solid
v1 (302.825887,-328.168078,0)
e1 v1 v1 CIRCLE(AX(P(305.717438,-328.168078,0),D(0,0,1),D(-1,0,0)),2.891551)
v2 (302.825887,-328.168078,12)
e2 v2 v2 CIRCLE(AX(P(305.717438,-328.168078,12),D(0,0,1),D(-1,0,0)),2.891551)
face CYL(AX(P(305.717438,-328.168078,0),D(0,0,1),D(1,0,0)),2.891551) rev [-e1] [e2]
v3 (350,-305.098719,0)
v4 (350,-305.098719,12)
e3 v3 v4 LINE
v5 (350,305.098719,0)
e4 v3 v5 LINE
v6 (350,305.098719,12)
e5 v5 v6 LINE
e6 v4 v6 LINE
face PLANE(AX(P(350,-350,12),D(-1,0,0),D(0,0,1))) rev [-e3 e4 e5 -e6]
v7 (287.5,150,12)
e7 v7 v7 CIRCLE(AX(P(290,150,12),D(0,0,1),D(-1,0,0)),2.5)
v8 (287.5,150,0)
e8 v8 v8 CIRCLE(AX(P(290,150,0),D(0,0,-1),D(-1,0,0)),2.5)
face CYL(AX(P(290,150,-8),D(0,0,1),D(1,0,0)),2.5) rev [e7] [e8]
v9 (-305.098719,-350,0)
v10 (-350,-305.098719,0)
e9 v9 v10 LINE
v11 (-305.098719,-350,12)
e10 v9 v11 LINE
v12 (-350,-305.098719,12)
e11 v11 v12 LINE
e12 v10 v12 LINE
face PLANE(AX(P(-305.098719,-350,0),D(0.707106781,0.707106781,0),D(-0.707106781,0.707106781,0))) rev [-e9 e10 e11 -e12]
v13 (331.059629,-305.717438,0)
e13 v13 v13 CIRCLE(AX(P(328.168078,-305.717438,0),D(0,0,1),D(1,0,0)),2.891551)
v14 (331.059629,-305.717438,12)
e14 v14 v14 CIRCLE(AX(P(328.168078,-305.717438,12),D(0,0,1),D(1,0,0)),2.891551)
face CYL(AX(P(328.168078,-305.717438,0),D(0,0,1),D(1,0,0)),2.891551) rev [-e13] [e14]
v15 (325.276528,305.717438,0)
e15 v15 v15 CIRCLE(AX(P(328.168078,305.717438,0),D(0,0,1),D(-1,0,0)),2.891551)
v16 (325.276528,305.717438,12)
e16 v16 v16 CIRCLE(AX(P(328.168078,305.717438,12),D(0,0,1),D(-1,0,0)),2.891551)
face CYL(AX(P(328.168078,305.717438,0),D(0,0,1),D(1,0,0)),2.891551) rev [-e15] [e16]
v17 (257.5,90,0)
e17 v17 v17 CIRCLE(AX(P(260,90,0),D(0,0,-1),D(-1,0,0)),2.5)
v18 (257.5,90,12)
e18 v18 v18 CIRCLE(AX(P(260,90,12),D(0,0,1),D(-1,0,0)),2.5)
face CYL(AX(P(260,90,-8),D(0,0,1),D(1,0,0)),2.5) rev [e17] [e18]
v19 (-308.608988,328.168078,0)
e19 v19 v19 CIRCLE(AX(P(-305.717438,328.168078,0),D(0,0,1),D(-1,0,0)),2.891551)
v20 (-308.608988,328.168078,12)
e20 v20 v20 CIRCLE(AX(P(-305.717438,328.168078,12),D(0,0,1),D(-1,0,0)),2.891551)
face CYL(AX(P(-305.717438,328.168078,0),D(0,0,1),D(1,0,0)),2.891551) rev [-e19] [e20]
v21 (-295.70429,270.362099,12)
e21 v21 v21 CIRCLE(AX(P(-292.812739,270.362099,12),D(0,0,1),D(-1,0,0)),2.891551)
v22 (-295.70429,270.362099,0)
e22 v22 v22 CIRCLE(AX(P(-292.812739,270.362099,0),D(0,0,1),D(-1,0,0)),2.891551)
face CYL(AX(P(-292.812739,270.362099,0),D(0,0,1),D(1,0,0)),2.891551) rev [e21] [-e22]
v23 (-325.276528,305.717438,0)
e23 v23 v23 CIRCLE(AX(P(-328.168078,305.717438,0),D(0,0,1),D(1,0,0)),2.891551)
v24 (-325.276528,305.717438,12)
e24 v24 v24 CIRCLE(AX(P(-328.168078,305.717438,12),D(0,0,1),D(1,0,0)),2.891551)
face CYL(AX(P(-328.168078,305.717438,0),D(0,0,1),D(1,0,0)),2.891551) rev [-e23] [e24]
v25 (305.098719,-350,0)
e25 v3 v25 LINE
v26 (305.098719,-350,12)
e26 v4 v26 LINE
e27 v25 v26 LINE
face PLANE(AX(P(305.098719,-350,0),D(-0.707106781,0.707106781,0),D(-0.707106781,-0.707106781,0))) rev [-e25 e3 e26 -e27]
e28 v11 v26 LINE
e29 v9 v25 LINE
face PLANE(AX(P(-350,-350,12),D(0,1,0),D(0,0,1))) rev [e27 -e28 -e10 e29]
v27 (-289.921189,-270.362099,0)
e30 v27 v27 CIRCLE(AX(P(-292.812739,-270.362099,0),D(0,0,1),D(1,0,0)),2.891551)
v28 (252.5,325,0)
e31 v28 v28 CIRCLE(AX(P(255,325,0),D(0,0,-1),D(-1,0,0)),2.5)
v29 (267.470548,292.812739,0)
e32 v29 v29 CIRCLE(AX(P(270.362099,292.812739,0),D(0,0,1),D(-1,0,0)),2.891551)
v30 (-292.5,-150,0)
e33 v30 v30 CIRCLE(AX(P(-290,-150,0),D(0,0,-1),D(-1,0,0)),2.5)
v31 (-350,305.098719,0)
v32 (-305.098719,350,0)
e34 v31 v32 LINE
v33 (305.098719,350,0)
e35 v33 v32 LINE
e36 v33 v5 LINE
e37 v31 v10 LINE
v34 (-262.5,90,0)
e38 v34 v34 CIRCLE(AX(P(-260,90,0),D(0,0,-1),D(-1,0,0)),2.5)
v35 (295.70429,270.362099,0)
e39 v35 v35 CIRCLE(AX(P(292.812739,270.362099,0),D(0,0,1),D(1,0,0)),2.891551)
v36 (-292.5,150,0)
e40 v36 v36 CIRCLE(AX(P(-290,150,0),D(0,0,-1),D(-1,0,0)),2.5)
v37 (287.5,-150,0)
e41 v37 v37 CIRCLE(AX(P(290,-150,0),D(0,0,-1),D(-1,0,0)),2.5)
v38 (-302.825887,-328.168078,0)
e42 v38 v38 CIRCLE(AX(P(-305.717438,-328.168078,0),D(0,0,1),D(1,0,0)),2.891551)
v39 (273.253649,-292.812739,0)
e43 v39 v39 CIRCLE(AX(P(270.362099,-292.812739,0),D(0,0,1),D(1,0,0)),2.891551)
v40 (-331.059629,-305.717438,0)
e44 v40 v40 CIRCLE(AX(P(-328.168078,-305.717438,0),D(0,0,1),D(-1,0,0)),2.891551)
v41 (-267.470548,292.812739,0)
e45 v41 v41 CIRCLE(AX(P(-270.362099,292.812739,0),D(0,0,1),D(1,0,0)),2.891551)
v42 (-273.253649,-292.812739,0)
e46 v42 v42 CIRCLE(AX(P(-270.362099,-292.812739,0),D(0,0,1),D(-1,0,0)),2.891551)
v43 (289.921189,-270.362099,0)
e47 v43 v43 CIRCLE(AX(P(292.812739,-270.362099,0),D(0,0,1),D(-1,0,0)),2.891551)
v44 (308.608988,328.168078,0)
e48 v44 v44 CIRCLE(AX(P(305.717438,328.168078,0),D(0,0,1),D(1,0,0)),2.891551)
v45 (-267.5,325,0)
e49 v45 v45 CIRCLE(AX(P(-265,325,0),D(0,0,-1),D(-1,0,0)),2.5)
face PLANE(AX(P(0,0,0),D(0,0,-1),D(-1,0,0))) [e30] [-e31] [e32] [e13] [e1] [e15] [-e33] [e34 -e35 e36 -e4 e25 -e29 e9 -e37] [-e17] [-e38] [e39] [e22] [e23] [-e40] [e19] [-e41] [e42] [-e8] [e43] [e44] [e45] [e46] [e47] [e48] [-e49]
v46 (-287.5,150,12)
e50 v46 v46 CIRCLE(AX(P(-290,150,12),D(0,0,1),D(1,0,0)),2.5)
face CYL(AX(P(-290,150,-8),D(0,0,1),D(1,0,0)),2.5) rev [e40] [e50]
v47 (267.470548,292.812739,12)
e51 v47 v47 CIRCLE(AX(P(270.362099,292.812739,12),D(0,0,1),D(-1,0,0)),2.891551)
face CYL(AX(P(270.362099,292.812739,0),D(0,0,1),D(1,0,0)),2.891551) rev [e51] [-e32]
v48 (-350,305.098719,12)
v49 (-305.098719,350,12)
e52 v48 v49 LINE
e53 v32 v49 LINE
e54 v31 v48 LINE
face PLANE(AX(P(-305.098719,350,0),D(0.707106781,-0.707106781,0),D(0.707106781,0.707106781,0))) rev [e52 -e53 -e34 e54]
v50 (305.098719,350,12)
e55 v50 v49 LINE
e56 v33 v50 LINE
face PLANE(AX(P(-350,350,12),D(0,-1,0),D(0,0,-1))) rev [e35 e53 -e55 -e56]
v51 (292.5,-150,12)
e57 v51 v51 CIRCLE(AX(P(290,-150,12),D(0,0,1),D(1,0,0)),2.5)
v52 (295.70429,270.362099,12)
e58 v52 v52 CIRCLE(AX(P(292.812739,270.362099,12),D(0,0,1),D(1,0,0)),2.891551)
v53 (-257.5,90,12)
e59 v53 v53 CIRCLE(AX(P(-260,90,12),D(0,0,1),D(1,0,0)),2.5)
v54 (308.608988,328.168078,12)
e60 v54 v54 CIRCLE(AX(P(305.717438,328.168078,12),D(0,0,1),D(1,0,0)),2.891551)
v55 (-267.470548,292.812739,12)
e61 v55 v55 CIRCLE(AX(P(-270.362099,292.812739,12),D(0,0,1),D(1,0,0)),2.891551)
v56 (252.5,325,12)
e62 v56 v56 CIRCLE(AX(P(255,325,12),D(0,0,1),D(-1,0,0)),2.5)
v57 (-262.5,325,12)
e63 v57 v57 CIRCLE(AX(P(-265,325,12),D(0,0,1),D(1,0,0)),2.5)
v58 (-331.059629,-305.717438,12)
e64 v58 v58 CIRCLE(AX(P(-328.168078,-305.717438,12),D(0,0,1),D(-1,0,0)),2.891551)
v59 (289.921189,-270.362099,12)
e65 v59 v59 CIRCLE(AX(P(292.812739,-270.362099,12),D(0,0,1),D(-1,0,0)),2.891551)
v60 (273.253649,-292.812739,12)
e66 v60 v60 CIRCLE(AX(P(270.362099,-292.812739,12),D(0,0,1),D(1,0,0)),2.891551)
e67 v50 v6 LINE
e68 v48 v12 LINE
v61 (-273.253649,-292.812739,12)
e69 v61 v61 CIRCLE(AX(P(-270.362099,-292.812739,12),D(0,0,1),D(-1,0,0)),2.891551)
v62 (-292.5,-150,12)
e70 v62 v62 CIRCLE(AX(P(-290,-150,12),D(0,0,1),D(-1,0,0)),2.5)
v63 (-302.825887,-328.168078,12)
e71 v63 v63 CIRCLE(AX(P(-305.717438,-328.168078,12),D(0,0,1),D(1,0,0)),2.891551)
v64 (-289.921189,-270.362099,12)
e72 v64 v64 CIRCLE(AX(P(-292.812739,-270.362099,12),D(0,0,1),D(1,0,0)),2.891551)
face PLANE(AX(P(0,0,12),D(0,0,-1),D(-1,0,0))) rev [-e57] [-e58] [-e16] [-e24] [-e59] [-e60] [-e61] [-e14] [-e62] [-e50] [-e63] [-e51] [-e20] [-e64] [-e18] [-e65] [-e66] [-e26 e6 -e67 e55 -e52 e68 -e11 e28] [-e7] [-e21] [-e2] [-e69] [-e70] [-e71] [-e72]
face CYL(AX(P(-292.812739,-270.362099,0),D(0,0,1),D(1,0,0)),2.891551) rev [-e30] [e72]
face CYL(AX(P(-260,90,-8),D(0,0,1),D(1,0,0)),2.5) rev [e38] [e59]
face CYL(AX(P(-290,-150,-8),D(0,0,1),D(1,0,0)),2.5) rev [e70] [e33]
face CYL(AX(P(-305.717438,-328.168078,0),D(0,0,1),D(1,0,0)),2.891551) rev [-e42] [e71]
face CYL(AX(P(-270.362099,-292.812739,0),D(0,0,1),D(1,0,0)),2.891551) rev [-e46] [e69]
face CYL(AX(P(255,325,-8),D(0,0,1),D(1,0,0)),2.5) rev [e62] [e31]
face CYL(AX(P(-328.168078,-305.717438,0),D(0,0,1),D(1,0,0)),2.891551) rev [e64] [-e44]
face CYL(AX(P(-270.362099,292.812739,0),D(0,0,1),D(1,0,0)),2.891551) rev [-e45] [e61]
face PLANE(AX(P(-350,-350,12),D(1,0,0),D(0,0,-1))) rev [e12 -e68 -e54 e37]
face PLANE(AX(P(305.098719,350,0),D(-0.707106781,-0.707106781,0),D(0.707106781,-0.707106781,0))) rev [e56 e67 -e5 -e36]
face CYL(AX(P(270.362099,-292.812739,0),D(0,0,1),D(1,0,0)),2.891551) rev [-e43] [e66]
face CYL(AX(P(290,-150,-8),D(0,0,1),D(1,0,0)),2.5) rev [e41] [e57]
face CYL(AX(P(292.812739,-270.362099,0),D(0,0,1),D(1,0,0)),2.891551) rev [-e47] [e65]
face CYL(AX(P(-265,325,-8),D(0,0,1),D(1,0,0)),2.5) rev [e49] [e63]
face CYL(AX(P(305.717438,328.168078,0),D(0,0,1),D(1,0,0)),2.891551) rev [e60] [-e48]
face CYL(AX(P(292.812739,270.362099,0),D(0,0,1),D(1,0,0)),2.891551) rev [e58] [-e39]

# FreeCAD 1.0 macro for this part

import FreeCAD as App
import Part
import Sketcher
from FreeCAD import Vector

doc = App.newDocument("Part")
body = doc.addObject("PartDesign::Body", "Body")

# Sketch on XY plane
sketch1 = body.newObject("Sketcher::SketchObject", "Sketch")
sketch1.AttachmentSupport = (doc.getObject("XY_Plane"), [""])
sketch1.MapMode = "FlatFace"
sketch1.addGeometry([
    Part.LineSegment(Vector(-350, 350, 0), Vector(-350, -350, 0)),
    Part.LineSegment(Vector(-350, -350, 0), Vector(350, -350, 0)),
    Part.LineSegment(Vector(350, -350, 0), Vector(350, 350, 0)),
    Part.LineSegment(Vector(350, 350, 0), Vector(-350, 350, 0)),
], False)
sketch1.addConstraint([
    Sketcher.Constraint("Coincident", 0, 2, 1, 1),
    Sketcher.Constraint("Coincident", 1, 2, 2, 1),
    Sketcher.Constraint("Coincident", 2, 2, 3, 1),
    Sketcher.Constraint("Coincident", 3, 2, 0, 1),
    Sketcher.Constraint("Vertical", 0),
    Sketcher.Constraint("Horizontal", 1),
    Sketcher.Constraint("Vertical", 2),
    Sketcher.Constraint("Horizontal", 3),
    Sketcher.Constraint("Symmetric", 0, 2, 2, 2, -1, 1),
    Sketcher.Constraint("Equal", 3, 0),
    Sketcher.Constraint("DistanceX", 1, 1, 1, 2, 700.0),
])
pad1 = body.newObject("PartDesign::Pad", "Pad")
pad1.Profile = sketch1
pad1.Length = 12

# Sketch on XY plane
sketch2 = body.newObject("Sketcher::SketchObject", "Sketch001")
sketch2.AttachmentSupport = (doc.getObject("XY_Plane"), [""])
sketch2.MapMode = "FlatFace"
sketch2.AttachmentOffset = App.Placement(Vector(0, 0, 12), App.Rotation())
sketch2.addGeometry([
    Part.Circle(Vector(305.7, 328.2, 0), Vector(0, 0, 1), 2.9),  # 0
    Part.Circle(Vector(328.2, 305.7, 0), Vector(0, 0, 1), 2.9),  # 1
    Part.Circle(Vector(292.8, 270.4, 0), Vector(0, 0, 1), 2.9),  # 2
    Part.Circle(Vector(270.4, 292.8, 0), Vector(0, 0, 1), 2.9),  # 3
    Part.Circle(Vector(-270.4, 292.8, 0), Vector(0, 0, 1), 2.9),  # 4
    Part.Circle(Vector(-292.8, 270.4, 0), Vector(0, 0, 1), 2.9),  # 5
    Part.Circle(Vector(-305.7, 328.2, 0), Vector(0, 0, 1), 2.9),  # 6
    Part.Circle(Vector(-328.2, 305.7, 0), Vector(0, 0, 1), 2.9),  # 7
    Part.Circle(Vector(270.4, -292.8, 0), Vector(0, 0, 1), 2.9),  # 8
    Part.Circle(Vector(305.7, -328.2, 0), Vector(0, 0, 1), 2.9),  # 9
    Part.Circle(Vector(328.2, -305.7, 0), Vector(0, 0, 1), 2.9),  # 10
    Part.Circle(Vector(292.8, -270.4, 0), Vector(0, 0, 1), 2.9),  # 11
    Part.Circle(Vector(-270.4, -292.8, 0), Vector(0, 0, 1), 2.9),  # 12
    Part.Circle(Vector(-292.8, -270.4, 0), Vector(0, 0, 1), 2.9),  # 13
    Part.Circle(Vector(-305.7, -328.2, 0), Vector(0, 0, 1), 2.9),  # 14
    Part.Circle(Vector(-328.2, -305.7, 0), Vector(0, 0, 1), 2.9),  # 15
    Part.LineSegment(Vector(350, 350, 0), Vector(305.1, 350, 0)),  # 16
    Part.LineSegment(Vector(305.1, 350, 0), Vector(350, 305.1, 0)),  # 17
    Part.LineSegment(Vector(350, 305.1, 0), Vector(350, 350, 0)),  # 18
    Part.LineSegment(Vector(-350, 305.1, 0), Vector(-305.1, 350, 0)),  # 19
    Part.LineSegment(Vector(-305.1, 350, 0), Vector(-350, 350, 0)),  # 20
    Part.LineSegment(Vector(-350, 350, 0), Vector(-350, 305.1, 0)),  # 21
    Part.LineSegment(Vector(350, -305.1, 0), Vector(305.1, -350, 0)),  # 22
    Part.LineSegment(Vector(305.1, -350, 0), Vector(350, -350, 0)),  # 23
    Part.LineSegment(Vector(350, -350, 0), Vector(350, -305.1, 0)),  # 24
    Part.LineSegment(Vector(-350, -350, 0), Vector(-305.1, -350, 0)),  # 25
    Part.LineSegment(Vector(-305.1, -350, 0), Vector(-350, -305.1, 0)),  # 26
    Part.LineSegment(Vector(-350, -305.1, 0), Vector(-350, -350, 0)),  # 27
], False)
sketch2.addConstraint([
    Sketcher.Constraint("Coincident", 16, 2, 17, 1),
    Sketcher.Constraint("Coincident", 17, 2, 18, 1),
    Sketcher.Constraint("Coincident", 18, 2, 16, 1),
    Sketcher.Constraint("Coincident", 19, 2, 20, 1),
    Sketcher.Constraint("Coincident", 20, 2, 21, 1),
    Sketcher.Constraint("Coincident", 21, 2, 19, 1),
    Sketcher.Constraint("Coincident", 22, 2, 23, 1),
    Sketcher.Constraint("Coincident", 23, 2, 24, 1),
    Sketcher.Constraint("Coincident", 24, 2, 22, 1),
    Sketcher.Constraint("Coincident", 25, 2, 26, 1),
    Sketcher.Constraint("Coincident", 26, 2, 27, 1),
    Sketcher.Constraint("Coincident", 27, 2, 25, 1),
    Sketcher.Constraint("Horizontal", 16),
    Sketcher.Constraint("Vertical", 18),
    Sketcher.Constraint("Horizontal", 20),
    Sketcher.Constraint("Vertical", 21),
    Sketcher.Constraint("Horizontal", 23),
    Sketcher.Constraint("Vertical", 24),
    Sketcher.Constraint("Horizontal", 25),
    Sketcher.Constraint("Vertical", 27),
    Sketcher.Constraint("Equal", 0, 1),
    Sketcher.Constraint("Equal", 1, 2),
    Sketcher.Constraint("Equal", 2, 3),
    Sketcher.Constraint("Equal", 3, 4),
    Sketcher.Constraint("Equal", 4, 5),
    Sketcher.Constraint("Equal", 5, 6),
    Sketcher.Constraint("Equal", 6, 7),
    Sketcher.Constraint("Equal", 7, 8),
    Sketcher.Constraint("Equal", 8, 9),
    Sketcher.Constraint("Equal", 9, 10),
    Sketcher.Constraint("Equal", 10, 11),
    Sketcher.Constraint("Equal", 11, 12),
    Sketcher.Constraint("Equal", 12, 13),
    Sketcher.Constraint("Equal", 13, 14),
    Sketcher.Constraint("Equal", 14, 15),
    Sketcher.Constraint("Symmetric", 4, 3, 8, 3, -1, 1),
    Sketcher.Constraint("Symmetric", 6, 3, 9, 3, -1, 1),
    Sketcher.Constraint("Symmetric", 7, 3, 10, 3, -1, 1),
    Sketcher.Constraint("Symmetric", 5, 3, 11, 3, -1, 1),
    Sketcher.Constraint("Symmetric", 3, 3, 12, 3, -1, 1),
    Sketcher.Constraint("Symmetric", 2, 3, 13, 3, -1, 1),
    Sketcher.Constraint("Symmetric", 0, 3, 14, 3, -1, 1),
    Sketcher.Constraint("Symmetric", 1, 3, 15, 3, -1, 1),
    Sketcher.Constraint("Symmetric", 19, 2, 22, 2, -1, 1),
    Sketcher.Constraint("Symmetric", 21, 2, 24, 2, -1, 1),
    Sketcher.Constraint("Symmetric", 16, 2, 25, 2, -1, 1),
    Sketcher.Constraint("Symmetric", 17, 2, 26, 2, -1, 1),
    Sketcher.Constraint("Symmetric", 3, 3, 4, 3, -2),
    Sketcher.Constraint("Symmetric", 2, 3, 5, 3, -2),
    Sketcher.Constraint("Symmetric", 0, 3, 6, 3, -2),
    Sketcher.Constraint("Symmetric", 1, 3, 7, 3, -2),
    Sketcher.Constraint("Symmetric", 16, 2, 19, 2, -2),
    Sketcher.Constraint("Symmetric", 17, 2, 21, 2, -2),
    Sketcher.Constraint("Perpendicular", 17, 19),
    Sketcher.Constraint("DistanceY", -1, 1, 16, 2, 350.0),
    Sketcher.Constraint("DistanceX", -1, 1, 17, 2, 350.0),
    Sketcher.Constraint("Distance", 17, 63.5),
    Sketcher.Constraint("Diameter", 0, 5.783101),
    Sketcher.Constraint("DistanceY", -1, 1, 2, 3, 270.362099),
    Sketcher.Constraint("DistanceX", -1, 1, 3, 3, 270.362099),
    Sketcher.Constraint("DistanceX", 2, 3, 0, 3, 12.904699),
    Sketcher.Constraint("DistanceY", 3, 3, 1, 3, 12.904699),
    Sketcher.Constraint("DistanceY", -1, 1, 0, 3, 328.168078),
    Sketcher.Constraint("DistanceX", -1, 1, 1, 3, 328.168078),
    Sketcher.Constraint("DistanceX", -1, 1, 2, 3, 292.812739),
    Sketcher.Constraint("DistanceY", -1, 1, 3, 3, 292.812739),
])
pocket1 = body.newObject("PartDesign::Pocket", "Pocket")
pocket1.Profile = sketch2
pocket1.Type = "ThroughAll"

# Sketch on XY plane
sketch3 = body.newObject("Sketcher::SketchObject", "Sketch002")
sketch3.AttachmentSupport = (doc.getObject("XY_Plane"), [""])
sketch3.MapMode = "FlatFace"
sketch3.AttachmentOffset = App.Placement(Vector(0, 0, 12), App.Rotation())
sketch3.addGeometry([
    Part.Circle(Vector(-290, 150, 0), Vector(0, 0, 1), 2.5),  # 0
    Part.Circle(Vector(290, 150, 0), Vector(0, 0, 1), 2.5),  # 1
    Part.Circle(Vector(290, -150, 0), Vector(0, 0, 1), 2.5),  # 2
    Part.Circle(Vector(-290, -150, 0), Vector(0, 0, 1), 2.5),  # 3
    Part.Circle(Vector(-265, 325, 0), Vector(0, 0, 1), 2.5),  # 4
    Part.Circle(Vector(255, 325, 0), Vector(0, 0, 1), 2.5),  # 5
    Part.Circle(Vector(-260, 90, 0), Vector(0, 0, 1), 2.5),  # 6
    Part.Circle(Vector(260, 90, 0), Vector(0, 0, 1), 2.5),  # 7
], False)
sketch3.addConstraint([
    Sketcher.Constraint("Equal", 0, 1),
    Sketcher.Constraint("Equal", 1, 2),
    Sketcher.Constraint("Equal", 2, 3),
    Sketcher.Constraint("Equal", 3, 4),
    Sketcher.Constraint("Equal", 4, 5),
    Sketcher.Constraint("Equal", 5, 6),
    Sketcher.Constraint("Equal", 6, 7),
    Sketcher.Constraint("Symmetric", 0, 3, 2, 3, -1, 1),
    Sketcher.Constraint("Symmetric", 1, 3, 3, 3, -1, 1),
    Sketcher.Constraint("Symmetric", 0, 3, 1, 3, -2),
    Sketcher.Constraint("Symmetric", 6, 3, 7, 3, -2),
    Sketcher.Constraint("Horizontal", 4, 3, 5, 3),
    Sketcher.Constraint("Diameter", 0, 5.0),
    Sketcher.Constraint("DistanceX", 0, 3, -1, 1, 290.0),
    Sketcher.Constraint("DistanceY", -1, 1, 0, 3, 150.0),
    Sketcher.Constraint("DistanceX", 4, 3, -1, 1, 265.0),
    Sketcher.Constraint("DistanceY", -1, 1, 4, 3, 325.0),
    Sketcher.Constraint("DistanceX", -1, 1, 5, 3, 255.0),
    Sketcher.Constraint("DistanceX", 6, 3, -1, 1, 260.0),
    Sketcher.Constraint("DistanceY", -1, 1, 6, 3, 90.0),
])
pocket2 = body.newObject("PartDesign::Pocket", "Pocket001")
pocket2.Profile = sketch3
pocket2.Length = 20

doc.recompute()
